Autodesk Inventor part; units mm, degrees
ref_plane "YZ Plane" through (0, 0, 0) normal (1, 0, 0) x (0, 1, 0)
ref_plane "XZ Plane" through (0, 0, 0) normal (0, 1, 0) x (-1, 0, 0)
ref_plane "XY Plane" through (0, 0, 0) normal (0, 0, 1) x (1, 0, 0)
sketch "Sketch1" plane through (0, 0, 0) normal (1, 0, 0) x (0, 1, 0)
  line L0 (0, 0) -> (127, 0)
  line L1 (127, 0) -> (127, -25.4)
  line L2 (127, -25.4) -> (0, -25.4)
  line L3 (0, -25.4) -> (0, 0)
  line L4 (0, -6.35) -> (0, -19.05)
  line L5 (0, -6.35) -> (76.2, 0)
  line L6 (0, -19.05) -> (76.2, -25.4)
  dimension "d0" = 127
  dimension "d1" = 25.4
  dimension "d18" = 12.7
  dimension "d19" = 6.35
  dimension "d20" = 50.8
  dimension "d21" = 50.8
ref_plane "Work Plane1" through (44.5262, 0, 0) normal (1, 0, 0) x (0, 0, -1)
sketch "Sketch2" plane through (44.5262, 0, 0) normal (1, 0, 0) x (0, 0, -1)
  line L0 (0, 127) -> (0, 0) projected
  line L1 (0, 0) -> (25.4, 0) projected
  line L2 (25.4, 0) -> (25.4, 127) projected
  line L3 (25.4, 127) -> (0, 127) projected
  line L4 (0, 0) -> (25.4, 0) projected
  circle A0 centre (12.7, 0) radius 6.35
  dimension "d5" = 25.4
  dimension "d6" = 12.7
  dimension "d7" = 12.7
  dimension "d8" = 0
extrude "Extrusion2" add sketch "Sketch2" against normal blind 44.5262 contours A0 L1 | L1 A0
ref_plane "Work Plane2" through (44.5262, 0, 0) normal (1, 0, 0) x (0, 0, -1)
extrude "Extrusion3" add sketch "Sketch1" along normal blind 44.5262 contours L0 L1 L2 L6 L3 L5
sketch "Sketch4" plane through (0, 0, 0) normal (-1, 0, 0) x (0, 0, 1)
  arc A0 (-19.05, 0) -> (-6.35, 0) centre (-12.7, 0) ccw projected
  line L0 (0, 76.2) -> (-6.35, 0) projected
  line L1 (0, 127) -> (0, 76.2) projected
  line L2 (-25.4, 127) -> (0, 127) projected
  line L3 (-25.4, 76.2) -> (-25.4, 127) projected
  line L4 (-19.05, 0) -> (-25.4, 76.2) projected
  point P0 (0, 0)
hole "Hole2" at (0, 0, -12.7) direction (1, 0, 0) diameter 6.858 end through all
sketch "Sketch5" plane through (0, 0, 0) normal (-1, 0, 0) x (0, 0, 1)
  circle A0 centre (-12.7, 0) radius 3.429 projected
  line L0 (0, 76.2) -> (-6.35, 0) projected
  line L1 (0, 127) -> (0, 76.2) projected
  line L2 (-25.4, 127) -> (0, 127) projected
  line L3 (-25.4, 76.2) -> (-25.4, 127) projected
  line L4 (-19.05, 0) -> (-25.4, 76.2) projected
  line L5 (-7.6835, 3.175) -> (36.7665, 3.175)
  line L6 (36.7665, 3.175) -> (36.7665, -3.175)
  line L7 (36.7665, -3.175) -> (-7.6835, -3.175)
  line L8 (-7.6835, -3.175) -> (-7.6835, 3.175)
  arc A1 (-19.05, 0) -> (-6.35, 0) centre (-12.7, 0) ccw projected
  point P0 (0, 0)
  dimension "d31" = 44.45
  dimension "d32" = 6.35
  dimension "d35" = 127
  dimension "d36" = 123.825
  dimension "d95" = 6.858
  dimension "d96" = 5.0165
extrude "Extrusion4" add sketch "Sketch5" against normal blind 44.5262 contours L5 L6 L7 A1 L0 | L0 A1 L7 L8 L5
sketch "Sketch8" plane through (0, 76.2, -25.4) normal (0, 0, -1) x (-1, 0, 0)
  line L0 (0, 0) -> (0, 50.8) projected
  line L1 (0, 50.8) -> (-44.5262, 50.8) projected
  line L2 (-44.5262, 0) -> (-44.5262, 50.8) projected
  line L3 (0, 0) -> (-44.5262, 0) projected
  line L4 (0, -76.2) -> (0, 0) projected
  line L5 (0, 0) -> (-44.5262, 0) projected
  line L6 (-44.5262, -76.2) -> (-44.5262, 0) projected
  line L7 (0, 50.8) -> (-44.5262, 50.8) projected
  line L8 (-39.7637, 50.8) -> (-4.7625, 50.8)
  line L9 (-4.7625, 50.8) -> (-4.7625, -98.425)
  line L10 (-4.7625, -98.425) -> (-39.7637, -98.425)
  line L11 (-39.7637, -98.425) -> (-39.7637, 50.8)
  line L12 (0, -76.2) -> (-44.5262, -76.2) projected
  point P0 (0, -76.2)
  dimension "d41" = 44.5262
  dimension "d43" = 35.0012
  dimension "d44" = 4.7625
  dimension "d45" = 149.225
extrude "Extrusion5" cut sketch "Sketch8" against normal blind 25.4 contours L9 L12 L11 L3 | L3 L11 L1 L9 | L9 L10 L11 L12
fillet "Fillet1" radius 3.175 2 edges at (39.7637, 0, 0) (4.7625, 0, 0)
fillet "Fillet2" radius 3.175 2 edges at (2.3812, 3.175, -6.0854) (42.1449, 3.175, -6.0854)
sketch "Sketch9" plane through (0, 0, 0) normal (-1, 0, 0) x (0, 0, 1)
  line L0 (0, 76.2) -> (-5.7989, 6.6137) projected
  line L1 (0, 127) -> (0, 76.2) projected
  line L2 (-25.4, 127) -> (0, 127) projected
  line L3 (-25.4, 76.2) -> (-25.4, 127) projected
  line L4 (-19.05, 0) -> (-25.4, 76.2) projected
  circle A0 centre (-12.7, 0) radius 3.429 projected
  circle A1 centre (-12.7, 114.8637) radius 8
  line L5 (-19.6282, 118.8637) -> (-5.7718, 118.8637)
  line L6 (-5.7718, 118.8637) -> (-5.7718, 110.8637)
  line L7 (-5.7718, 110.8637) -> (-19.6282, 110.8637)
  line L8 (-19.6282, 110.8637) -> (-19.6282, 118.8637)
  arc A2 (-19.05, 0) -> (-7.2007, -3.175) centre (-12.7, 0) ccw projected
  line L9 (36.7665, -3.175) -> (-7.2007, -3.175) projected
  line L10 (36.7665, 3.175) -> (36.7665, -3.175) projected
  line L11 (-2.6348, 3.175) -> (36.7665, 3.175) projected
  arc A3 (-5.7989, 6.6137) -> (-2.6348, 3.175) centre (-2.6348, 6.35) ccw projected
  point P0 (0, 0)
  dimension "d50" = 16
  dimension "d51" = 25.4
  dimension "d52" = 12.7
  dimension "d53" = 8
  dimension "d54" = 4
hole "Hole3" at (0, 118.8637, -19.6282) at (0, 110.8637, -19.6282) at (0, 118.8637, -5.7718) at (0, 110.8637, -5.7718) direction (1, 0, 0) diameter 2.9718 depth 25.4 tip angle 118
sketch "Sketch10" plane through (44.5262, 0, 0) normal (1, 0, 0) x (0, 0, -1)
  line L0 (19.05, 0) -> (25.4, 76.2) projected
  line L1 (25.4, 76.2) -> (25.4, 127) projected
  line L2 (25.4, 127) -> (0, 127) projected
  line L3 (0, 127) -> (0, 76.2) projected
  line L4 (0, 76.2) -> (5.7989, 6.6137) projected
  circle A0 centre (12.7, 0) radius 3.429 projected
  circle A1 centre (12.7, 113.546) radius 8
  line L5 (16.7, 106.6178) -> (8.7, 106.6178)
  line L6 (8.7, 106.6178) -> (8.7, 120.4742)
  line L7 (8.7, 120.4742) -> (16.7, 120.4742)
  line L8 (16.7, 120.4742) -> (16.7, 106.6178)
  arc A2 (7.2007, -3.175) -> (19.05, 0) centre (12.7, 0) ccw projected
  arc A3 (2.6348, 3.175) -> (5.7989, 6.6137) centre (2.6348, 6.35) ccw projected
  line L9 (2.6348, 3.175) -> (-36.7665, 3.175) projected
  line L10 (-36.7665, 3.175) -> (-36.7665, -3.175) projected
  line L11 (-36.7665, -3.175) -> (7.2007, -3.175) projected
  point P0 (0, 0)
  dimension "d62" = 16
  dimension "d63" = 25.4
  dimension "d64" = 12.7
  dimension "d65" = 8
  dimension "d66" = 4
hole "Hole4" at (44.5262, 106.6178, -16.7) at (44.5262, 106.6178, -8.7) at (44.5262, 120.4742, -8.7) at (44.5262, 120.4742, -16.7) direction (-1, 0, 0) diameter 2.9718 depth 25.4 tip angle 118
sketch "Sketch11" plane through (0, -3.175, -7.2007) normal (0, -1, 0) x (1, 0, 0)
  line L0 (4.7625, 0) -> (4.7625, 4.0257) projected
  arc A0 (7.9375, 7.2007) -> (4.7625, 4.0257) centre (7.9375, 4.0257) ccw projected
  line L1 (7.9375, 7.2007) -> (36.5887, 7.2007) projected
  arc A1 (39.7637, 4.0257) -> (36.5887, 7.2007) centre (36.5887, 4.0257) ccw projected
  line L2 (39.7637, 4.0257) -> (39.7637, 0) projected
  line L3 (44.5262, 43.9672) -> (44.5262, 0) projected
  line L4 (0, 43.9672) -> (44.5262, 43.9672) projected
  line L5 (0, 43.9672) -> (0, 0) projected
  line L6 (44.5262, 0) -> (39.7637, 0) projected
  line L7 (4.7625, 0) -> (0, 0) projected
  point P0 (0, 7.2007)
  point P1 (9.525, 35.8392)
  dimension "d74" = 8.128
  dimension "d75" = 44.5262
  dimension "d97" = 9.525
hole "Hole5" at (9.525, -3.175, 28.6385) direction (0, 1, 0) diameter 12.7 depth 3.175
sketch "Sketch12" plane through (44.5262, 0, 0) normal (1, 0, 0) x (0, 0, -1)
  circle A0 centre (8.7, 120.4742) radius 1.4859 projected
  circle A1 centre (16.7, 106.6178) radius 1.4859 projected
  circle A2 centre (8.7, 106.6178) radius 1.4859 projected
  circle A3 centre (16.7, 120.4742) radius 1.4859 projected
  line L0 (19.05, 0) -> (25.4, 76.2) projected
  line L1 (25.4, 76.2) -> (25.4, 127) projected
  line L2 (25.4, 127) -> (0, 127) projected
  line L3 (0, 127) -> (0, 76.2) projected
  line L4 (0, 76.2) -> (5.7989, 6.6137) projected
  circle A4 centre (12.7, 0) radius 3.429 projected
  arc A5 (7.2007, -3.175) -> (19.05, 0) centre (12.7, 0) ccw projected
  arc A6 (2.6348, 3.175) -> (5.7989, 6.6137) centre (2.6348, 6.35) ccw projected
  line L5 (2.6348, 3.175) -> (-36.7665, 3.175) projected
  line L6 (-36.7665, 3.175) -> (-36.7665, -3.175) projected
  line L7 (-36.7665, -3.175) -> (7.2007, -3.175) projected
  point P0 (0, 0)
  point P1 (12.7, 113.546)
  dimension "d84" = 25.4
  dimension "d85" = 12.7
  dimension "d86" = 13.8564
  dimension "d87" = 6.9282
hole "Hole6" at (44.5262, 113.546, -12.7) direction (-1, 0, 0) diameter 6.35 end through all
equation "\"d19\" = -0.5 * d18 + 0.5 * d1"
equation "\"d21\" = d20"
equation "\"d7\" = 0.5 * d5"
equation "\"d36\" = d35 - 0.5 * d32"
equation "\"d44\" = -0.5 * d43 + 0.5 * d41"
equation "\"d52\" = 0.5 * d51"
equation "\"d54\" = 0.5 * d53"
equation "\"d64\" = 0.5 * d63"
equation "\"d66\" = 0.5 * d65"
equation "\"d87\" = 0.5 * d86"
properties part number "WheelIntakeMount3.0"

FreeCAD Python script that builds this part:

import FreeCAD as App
import Part
import Sketcher

V = App.Vector
Q = App.Units.Quantity


def edges_at(feature, points):
    """Names of the edges that pass closest to the given points."""
    edges = feature.Shape.Edges
    near = lambda p: min(range(len(edges)), key=lambda i: edges[i].distToShape(Part.Vertex(*p))[0])
    return sorted({f"Edge{near(p) + 1}" for p in points})

doc = App.newDocument("Part")
body = doc.addObject("PartDesign::Body", "Body")

sketch1 = body.newObject("Sketcher::SketchObject", "Sketch")
sketch1.AttachmentSupport = (doc.getObject("YZ_Plane"), [""])
sketch1.MapMode = "FlatFace"
sketch1.AttachmentOffset = App.Placement(V(0, 0, 1.753 * 25.4), App.Rotation())
sketch1.addGeometry(Part.Circle(V(0, -12.7, 0), V(0, 0, 1), 6.35), False)
sketch1.addConstraint([
    Sketcher.Constraint("PointOnObject", 0, 3, -2),
    Sketcher.Constraint("Diameter", 0, Q("0.5 in")),
    Sketcher.Constraint("DistanceY", 0, 3, -1, 1, Q("0.5 in")),
])
pad1 = body.newObject("PartDesign::Pad", "Pad")
pad1.Profile = sketch1
pad1.Length = Q("1.753 in")
pad1.Reversed = True

sketch2 = body.newObject("Sketcher::SketchObject", "Sketch001")
sketch2.AttachmentSupport = (doc.getObject("YZ_Plane"), [""])
sketch2.MapMode = "FlatFace"
sketch2.addGeometry([
    Part.LineSegment(V(127, 0, 0), V(76.2, 0, 0)),
    Part.LineSegment(V(76.2, 0, 0), V(0, -6.35, 0)),
    Part.LineSegment(V(0, -6.35, 0), V(0, -19.05, 0)),
    Part.LineSegment(V(0, -19.05, 0), V(76.2, -25.4, 0)),
    Part.LineSegment(V(76.2, -25.4, 0), V(127, -25.4, 0)),
    Part.LineSegment(V(127, -25.4, 0), V(127, 0, 0)),
], False)
sketch2.addConstraint([
    Sketcher.Constraint("Coincident", 0, 2, 1, 1),
    Sketcher.Constraint("Coincident", 1, 2, 2, 1),
    Sketcher.Constraint("Coincident", 2, 2, 3, 1),
    Sketcher.Constraint("Coincident", 3, 2, 4, 1),
    Sketcher.Constraint("Coincident", 4, 2, 5, 1),
    Sketcher.Constraint("Coincident", 5, 2, 0, 1),
    Sketcher.Constraint("Horizontal", 0),
    Sketcher.Constraint("Vertical", 2),
    Sketcher.Constraint("Horizontal", 4),
    Sketcher.Constraint("Vertical", 5),
    Sketcher.Constraint("PointOnObject", 0, 2, -1),
    Sketcher.Constraint("PointOnObject", 1, 2, -2),
    Sketcher.Constraint("Vertical", 0, 2, 3, 2),
    Sketcher.Constraint("Equal", 1, 3),
    Sketcher.Constraint("DistanceX", 0, 2, 0, 1, Q("2 in")),
    Sketcher.Constraint("DistanceY", 5, 1, 5, 2, Q("1 in")),
    Sketcher.Constraint("DistanceY", 2, 2, 2, 1, Q("0.5 in")),
    Sketcher.Constraint("DistanceX", -1, 1, 4, 2, Q("5 in")),
])
pad2 = body.newObject("PartDesign::Pad", "Pad001")
pad2.Profile = sketch2
pad2.Length = Q("1.753 in")

sketch3 = body.newObject("Sketcher::SketchObject", "Sketch002")
sketch3.AttachmentSupport = (doc.getObject("YZ_Plane"), [""])
sketch3.MapMode = "FlatFace"
sketch3.addGeometry(Part.Circle(V(0, -12.7, 0), V(0, 0, 1), 3.429), False)
sketch3.addConstraint([
    Sketcher.Constraint("PointOnObject", 0, 3, -2),
    Sketcher.Constraint("Diameter", 0, Q("0.27 in")),
    Sketcher.Constraint("DistanceY", 0, 3, -1, 1, Q("0.5 in")),
])
doc.recompute()
hole = body.newObject("PartDesign::Hole", "Hole")
hole.Profile = sketch3
hole.ThreadType = "None"
hole.Diameter = Q("0.27 in")
hole.DepthType = "ThroughAll"
hole.Reversed = True

sketch4 = body.newObject("Sketcher::SketchObject", "Sketch003")
sketch4.AttachmentSupport = (doc.getObject("YZ_Plane"), [""])
sketch4.MapMode = "FlatFace"
sketch4.addGeometry([
    Part.LineSegment(V(3.175, 36.7665, 0), V(3.175, -7.6835, 0)),
    Part.LineSegment(V(3.175, -7.6835, 0), V(-3.175, -7.6835, 0)),
    Part.LineSegment(V(-3.175, -7.6835, 0), V(-3.175, 36.7665, 0)),
    Part.LineSegment(V(-3.175, 36.7665, 0), V(3.175, 36.7665, 0)),
], False)
sketch4.addConstraint([
    Sketcher.Constraint("Coincident", 0, 2, 1, 1),
    Sketcher.Constraint("Coincident", 1, 2, 2, 1),
    Sketcher.Constraint("Coincident", 2, 2, 3, 1),
    Sketcher.Constraint("Coincident", 3, 2, 0, 1),
    Sketcher.Constraint("Vertical", 0),
    Sketcher.Constraint("Horizontal", 1),
    Sketcher.Constraint("Vertical", 2),
    Sketcher.Constraint("Horizontal", 3),
    Sketcher.Constraint("DistanceX", 1, 2, 1, 1, Q("0.25 in")),
    Sketcher.Constraint("DistanceY", 0, 2, 0, 1, Q("1.75 in")),
    Sketcher.Constraint("DistanceX", -1, 1, 0, 2, Q("0.125 in")),
    Sketcher.Constraint("DistanceY", 0, 2, -1, 1, Q("0.3025 in")),
])
pad3 = body.newObject("PartDesign::Pad", "Pad002")
pad3.Profile = sketch4
pad3.Length = Q("1.753 in")

sketch5 = body.newObject("Sketcher::SketchObject", "Sketch004")
sketch5.AttachmentSupport = (doc.getObject("XY_Plane"), [""])
sketch5.MapMode = "FlatFace"
sketch5.AttachmentOffset = App.Placement(V(0, 0, -1 * 25.4), App.Rotation())
sketch5.addGeometry([
    Part.LineSegment(V(4.7625, 127, 0), V(39.7637, 127, 0)),
    Part.LineSegment(V(39.7637, 127, 0), V(39.7637, -22.225, 0)),
    Part.LineSegment(V(39.7637, -22.225, 0), V(4.7625, -22.225, 0)),
    Part.LineSegment(V(4.7625, -22.225, 0), V(4.7625, 127, 0)),
], False)
sketch5.addConstraint([
    Sketcher.Constraint("Coincident", 0, 2, 1, 1),
    Sketcher.Constraint("Coincident", 1, 2, 2, 1),
    Sketcher.Constraint("Coincident", 2, 2, 3, 1),
    Sketcher.Constraint("Coincident", 3, 2, 0, 1),
    Sketcher.Constraint("Horizontal", 0),
    Sketcher.Constraint("Vertical", 1),
    Sketcher.Constraint("Horizontal", 2),
    Sketcher.Constraint("Vertical", 3),
    Sketcher.Constraint("DistanceX", 0, 1, 0, 2, Q("1.378 in")),
    Sketcher.Constraint("DistanceY", 1, 2, 1, 1, Q("5.875 in")),
    Sketcher.Constraint("DistanceX", -1, 1, 2, 2, Q("0.1875 in")),
    Sketcher.Constraint("DistanceY", -1, 1, 0, 2, Q("5 in")),
])
pocket1 = body.newObject("PartDesign::Pocket", "Pocket")
pocket1.Profile = sketch5
pocket1.Length = Q("1 in")
pocket1.Reversed = True
doc.recompute()

fillet = body.newObject("PartDesign::Fillet", "Fillet")
fillet.Base = (pocket1, edges_at(pocket1, [(39.764, 0, 0), (4.763, 0, 0)]))
fillet.Radius = Q("0.125 in")
doc.recompute()

fillet2 = body.newObject("PartDesign::Fillet", "Fillet001")
fillet2.Base = (fillet, edges_at(fillet, [(2.381, 3.175, -6.085), (42.145, 3.175, -6.085)]))
fillet2.Radius = Q("0.125 in")

sketch6 = body.newObject("Sketcher::SketchObject", "Sketch005")
sketch6.AttachmentSupport = (doc.getObject("YZ_Plane"), [""])
sketch6.MapMode = "FlatFace"
sketch6.addGeometry([
    Part.Circle(V(118.8637, -19.6282, 0), V(0, 0, 1), 1.4859),
    Part.Circle(V(110.8637, -19.6282, 0), V(0, 0, 1), 1.4859),
    Part.Circle(V(118.8637, -5.7718, 0), V(0, 0, 1), 1.4859),
    Part.Circle(V(110.8637, -5.7718, 0), V(0, 0, 1), 1.4859),
], False)
sketch6.addConstraint([
    Sketcher.Constraint("Equal", 0, 1),
    Sketcher.Constraint("Equal", 1, 2),
    Sketcher.Constraint("Equal", 2, 3),
    Sketcher.Constraint("Horizontal", 0, 3, 1, 3),
    Sketcher.Constraint("Horizontal", 2, 3, 3, 3),
    Sketcher.Constraint("Vertical", 0, 3, 2, 3),
    Sketcher.Constraint("Vertical", 1, 3, 3, 3),
    Sketcher.Constraint("Diameter", 0, Q("0.117 in")),
    Sketcher.Constraint("DistanceX", -1, 1, 0, 3, 118.8637),
    Sketcher.Constraint("DistanceY", 0, 3, -1, 1, 19.6282),
    Sketcher.Constraint("DistanceX", -1, 1, 1, 3, 110.8637),
    Sketcher.Constraint("DistanceY", 2, 3, -1, 1, 5.7718),
])
doc.recompute()
hole2 = body.newObject("PartDesign::Hole", "Hole001")
hole2.Profile = sketch6
hole2.ThreadType = "None"
hole2.Diameter = Q("0.117 in")
hole2.DepthType = "Dimension"
hole2.Depth = Q("1 in")
hole2.DrillPoint = "Angled"
hole2.DrillPointAngle = 118
hole2.Reversed = True

sketch7 = body.newObject("Sketcher::SketchObject", "Sketch006")
sketch7.AttachmentSupport = (doc.getObject("YZ_Plane"), [""])
sketch7.MapMode = "FlatFace"
sketch7.AttachmentOffset = App.Placement(V(0, 0, 1.753 * 25.4), App.Rotation())
sketch7.addGeometry([
    Part.Circle(V(106.6178, -16.7, 0), V(0, 0, 1), 1.4859),
    Part.Circle(V(106.6178, -8.7, 0), V(0, 0, 1), 1.4859),
    Part.Circle(V(120.4742, -8.7, 0), V(0, 0, 1), 1.4859),
    Part.Circle(V(120.4742, -16.7, 0), V(0, 0, 1), 1.4859),
], False)
sketch7.addConstraint([
    Sketcher.Constraint("Equal", 0, 1),
    Sketcher.Constraint("Equal", 1, 2),
    Sketcher.Constraint("Equal", 2, 3),
    Sketcher.Constraint("Horizontal", 1, 3, 2, 3),
    Sketcher.Constraint("Horizontal", 0, 3, 3, 3),
    Sketcher.Constraint("Vertical", 0, 3, 1, 3),
    Sketcher.Constraint("Vertical", 2, 3, 3, 3),
    Sketcher.Constraint("Diameter", 0, Q("0.117 in")),
    Sketcher.Constraint("DistanceX", -1, 1, 0, 3, 106.6178),
    Sketcher.Constraint("DistanceY", 0, 3, -1, 1, 16.7),
    Sketcher.Constraint("DistanceY", 1, 3, -1, 1, 8.7),
    Sketcher.Constraint("DistanceX", -1, 1, 2, 3, 120.4742),
])
doc.recompute()
hole3 = body.newObject("PartDesign::Hole", "Hole002")
hole3.Profile = sketch7
hole3.ThreadType = "None"
hole3.Diameter = Q("0.117 in")
hole3.DepthType = "Dimension"
hole3.Depth = Q("1 in")
hole3.DrillPoint = "Angled"
hole3.DrillPointAngle = 118

sketch8 = body.newObject("Sketcher::SketchObject", "Sketch007")
sketch8.AttachmentSupport = (doc.getObject("XZ_Plane"), [""])
sketch8.MapMode = "FlatFace"
sketch8.AttachmentOffset = App.Placement(V(0, 0, 0.125 * 25.4), App.Rotation())
sketch8.addGeometry(Part.Circle(V(9.525, 28.6385, 0), V(0, 0, 1), 6.35), False)
sketch8.addConstraint([
    Sketcher.Constraint("Diameter", 0, Q("0.5 in")),
    Sketcher.Constraint("DistanceX", -1, 1, 0, 3, Q("0.375 in")),
    Sketcher.Constraint("DistanceY", -1, 1, 0, 3, Q("1.1275 in")),
])
doc.recompute()
hole4 = body.newObject("PartDesign::Hole", "Hole003")
hole4.Profile = sketch8
hole4.ThreadType = "None"
hole4.Diameter = Q("0.5 in")
hole4.DepthType = "Dimension"
hole4.Depth = Q("0.125 in")
hole4.DrillPoint = "Flat"

sketch9 = body.newObject("Sketcher::SketchObject", "Sketch008")
sketch9.AttachmentSupport = (doc.getObject("YZ_Plane"), [""])
sketch9.MapMode = "FlatFace"
sketch9.AttachmentOffset = App.Placement(V(0, 0, 1.753 * 25.4), App.Rotation())
sketch9.addGeometry(Part.Circle(V(113.546, -12.7, 0), V(0, 0, 1), 3.175), False)
sketch9.addConstraint([
    Sketcher.Constraint("Diameter", 0, Q("0.25 in")),
    Sketcher.Constraint("DistanceY", 0, 3, -1, 1, Q("0.5 in")),
    Sketcher.Constraint("DistanceX", -1, 1, 0, 3, 113.546),
])
doc.recompute()
hole5 = body.newObject("PartDesign::Hole", "Hole004")
hole5.Profile = sketch9
hole5.ThreadType = "None"
hole5.Diameter = Q("0.25 in")
hole5.DepthType = "ThroughAll"

doc.recompute()
